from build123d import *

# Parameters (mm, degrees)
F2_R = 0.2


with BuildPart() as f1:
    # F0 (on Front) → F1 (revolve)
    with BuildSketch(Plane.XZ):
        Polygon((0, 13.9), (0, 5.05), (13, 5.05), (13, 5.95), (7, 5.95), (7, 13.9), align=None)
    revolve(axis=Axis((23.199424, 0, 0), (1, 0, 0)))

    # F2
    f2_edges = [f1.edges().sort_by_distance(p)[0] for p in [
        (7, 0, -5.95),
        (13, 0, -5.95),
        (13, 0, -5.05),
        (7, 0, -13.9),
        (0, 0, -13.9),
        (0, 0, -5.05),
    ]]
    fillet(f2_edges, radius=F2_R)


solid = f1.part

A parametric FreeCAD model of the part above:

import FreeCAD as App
import Part
import Sketcher
from FreeCAD import Vector


def edges_at(feature, points):
    """Names of the edges that pass closest to the given points."""
    edges = feature.Shape.Edges
    near = lambda p: min(range(len(edges)), key=lambda i: edges[i].distToShape(Part.Vertex(*p))[0])
    return sorted({f"Edge{near(p) + 1}" for p in points})


def add_polygon(sketch, points):
    """Adds a closed chain of lines whose ends are joined by coincident constraints."""
    first, n = sketch.GeometryCount, len(points)
    for a, b in zip(points, points[1:] + points[:1]):
        sketch.addGeometry(Part.LineSegment(App.Vector(*a, 0), App.Vector(*b, 0)), False)
    for i in range(n):
        sketch.addConstraint(Sketcher.Constraint("Coincident", first + i, 2, first + (i + 1) % n, 1))

doc = App.newDocument("Part")
body = doc.addObject("PartDesign::Body", "Body")

# Sketch on XZ plane
sketch1 = body.newObject("Sketcher::SketchObject", "Sketch")
sketch1.AttachmentSupport = (doc.getObject("XZ_Plane"), [""])
sketch1.MapMode = "FlatFace"
add_polygon(sketch1, [(0, 13.9), (0, 5), (13, 5), (13, 6), (7, 6), (7, 13.9)])  # lines 0-5
sketch1.addConstraint([
    Sketcher.Constraint("Vertical", 0),
    Sketcher.Constraint("Horizontal", 1),
    Sketcher.Constraint("Vertical", 2),
    Sketcher.Constraint("Horizontal", 3),
    Sketcher.Constraint("Vertical", 4),
    Sketcher.Constraint("Horizontal", 5),
    Sketcher.Constraint("PointOnObject", 0, 2, -2),
    Sketcher.Constraint("DistanceX", 1, 1, 1, 2, 13.0),
    Sketcher.Constraint("DistanceX", 3, 2, 3, 1, 6.0),
    Sketcher.Constraint("DistanceY", 2, 1, 2, 2, 0.9),
    Sketcher.Constraint("DistanceY", 0, 2, 0, 1, 8.85),
    Sketcher.Constraint("DistanceY", -1, 1, 4, 2, 13.9),
])
revolution = body.newObject("PartDesign::Revolution", "Revolution")
revolution.Profile = sketch1
revolution.ReferenceAxis = (sketch1, ["H_Axis"])
revolution.Angle = 360
doc.recompute()

fillet = body.newObject("PartDesign::Fillet", "Fillet")
fillet.Base = (revolution, edges_at(revolution, [
    (7, 0, -5.95),
    (13, 0, -5.95),
    (13, 0, -5.05),
    (7, 0, -13.9),
    (0, 0, -13.9),
    (0, 0, -5.05),
]))
fillet.Radius = 0.2

doc.recompute()
